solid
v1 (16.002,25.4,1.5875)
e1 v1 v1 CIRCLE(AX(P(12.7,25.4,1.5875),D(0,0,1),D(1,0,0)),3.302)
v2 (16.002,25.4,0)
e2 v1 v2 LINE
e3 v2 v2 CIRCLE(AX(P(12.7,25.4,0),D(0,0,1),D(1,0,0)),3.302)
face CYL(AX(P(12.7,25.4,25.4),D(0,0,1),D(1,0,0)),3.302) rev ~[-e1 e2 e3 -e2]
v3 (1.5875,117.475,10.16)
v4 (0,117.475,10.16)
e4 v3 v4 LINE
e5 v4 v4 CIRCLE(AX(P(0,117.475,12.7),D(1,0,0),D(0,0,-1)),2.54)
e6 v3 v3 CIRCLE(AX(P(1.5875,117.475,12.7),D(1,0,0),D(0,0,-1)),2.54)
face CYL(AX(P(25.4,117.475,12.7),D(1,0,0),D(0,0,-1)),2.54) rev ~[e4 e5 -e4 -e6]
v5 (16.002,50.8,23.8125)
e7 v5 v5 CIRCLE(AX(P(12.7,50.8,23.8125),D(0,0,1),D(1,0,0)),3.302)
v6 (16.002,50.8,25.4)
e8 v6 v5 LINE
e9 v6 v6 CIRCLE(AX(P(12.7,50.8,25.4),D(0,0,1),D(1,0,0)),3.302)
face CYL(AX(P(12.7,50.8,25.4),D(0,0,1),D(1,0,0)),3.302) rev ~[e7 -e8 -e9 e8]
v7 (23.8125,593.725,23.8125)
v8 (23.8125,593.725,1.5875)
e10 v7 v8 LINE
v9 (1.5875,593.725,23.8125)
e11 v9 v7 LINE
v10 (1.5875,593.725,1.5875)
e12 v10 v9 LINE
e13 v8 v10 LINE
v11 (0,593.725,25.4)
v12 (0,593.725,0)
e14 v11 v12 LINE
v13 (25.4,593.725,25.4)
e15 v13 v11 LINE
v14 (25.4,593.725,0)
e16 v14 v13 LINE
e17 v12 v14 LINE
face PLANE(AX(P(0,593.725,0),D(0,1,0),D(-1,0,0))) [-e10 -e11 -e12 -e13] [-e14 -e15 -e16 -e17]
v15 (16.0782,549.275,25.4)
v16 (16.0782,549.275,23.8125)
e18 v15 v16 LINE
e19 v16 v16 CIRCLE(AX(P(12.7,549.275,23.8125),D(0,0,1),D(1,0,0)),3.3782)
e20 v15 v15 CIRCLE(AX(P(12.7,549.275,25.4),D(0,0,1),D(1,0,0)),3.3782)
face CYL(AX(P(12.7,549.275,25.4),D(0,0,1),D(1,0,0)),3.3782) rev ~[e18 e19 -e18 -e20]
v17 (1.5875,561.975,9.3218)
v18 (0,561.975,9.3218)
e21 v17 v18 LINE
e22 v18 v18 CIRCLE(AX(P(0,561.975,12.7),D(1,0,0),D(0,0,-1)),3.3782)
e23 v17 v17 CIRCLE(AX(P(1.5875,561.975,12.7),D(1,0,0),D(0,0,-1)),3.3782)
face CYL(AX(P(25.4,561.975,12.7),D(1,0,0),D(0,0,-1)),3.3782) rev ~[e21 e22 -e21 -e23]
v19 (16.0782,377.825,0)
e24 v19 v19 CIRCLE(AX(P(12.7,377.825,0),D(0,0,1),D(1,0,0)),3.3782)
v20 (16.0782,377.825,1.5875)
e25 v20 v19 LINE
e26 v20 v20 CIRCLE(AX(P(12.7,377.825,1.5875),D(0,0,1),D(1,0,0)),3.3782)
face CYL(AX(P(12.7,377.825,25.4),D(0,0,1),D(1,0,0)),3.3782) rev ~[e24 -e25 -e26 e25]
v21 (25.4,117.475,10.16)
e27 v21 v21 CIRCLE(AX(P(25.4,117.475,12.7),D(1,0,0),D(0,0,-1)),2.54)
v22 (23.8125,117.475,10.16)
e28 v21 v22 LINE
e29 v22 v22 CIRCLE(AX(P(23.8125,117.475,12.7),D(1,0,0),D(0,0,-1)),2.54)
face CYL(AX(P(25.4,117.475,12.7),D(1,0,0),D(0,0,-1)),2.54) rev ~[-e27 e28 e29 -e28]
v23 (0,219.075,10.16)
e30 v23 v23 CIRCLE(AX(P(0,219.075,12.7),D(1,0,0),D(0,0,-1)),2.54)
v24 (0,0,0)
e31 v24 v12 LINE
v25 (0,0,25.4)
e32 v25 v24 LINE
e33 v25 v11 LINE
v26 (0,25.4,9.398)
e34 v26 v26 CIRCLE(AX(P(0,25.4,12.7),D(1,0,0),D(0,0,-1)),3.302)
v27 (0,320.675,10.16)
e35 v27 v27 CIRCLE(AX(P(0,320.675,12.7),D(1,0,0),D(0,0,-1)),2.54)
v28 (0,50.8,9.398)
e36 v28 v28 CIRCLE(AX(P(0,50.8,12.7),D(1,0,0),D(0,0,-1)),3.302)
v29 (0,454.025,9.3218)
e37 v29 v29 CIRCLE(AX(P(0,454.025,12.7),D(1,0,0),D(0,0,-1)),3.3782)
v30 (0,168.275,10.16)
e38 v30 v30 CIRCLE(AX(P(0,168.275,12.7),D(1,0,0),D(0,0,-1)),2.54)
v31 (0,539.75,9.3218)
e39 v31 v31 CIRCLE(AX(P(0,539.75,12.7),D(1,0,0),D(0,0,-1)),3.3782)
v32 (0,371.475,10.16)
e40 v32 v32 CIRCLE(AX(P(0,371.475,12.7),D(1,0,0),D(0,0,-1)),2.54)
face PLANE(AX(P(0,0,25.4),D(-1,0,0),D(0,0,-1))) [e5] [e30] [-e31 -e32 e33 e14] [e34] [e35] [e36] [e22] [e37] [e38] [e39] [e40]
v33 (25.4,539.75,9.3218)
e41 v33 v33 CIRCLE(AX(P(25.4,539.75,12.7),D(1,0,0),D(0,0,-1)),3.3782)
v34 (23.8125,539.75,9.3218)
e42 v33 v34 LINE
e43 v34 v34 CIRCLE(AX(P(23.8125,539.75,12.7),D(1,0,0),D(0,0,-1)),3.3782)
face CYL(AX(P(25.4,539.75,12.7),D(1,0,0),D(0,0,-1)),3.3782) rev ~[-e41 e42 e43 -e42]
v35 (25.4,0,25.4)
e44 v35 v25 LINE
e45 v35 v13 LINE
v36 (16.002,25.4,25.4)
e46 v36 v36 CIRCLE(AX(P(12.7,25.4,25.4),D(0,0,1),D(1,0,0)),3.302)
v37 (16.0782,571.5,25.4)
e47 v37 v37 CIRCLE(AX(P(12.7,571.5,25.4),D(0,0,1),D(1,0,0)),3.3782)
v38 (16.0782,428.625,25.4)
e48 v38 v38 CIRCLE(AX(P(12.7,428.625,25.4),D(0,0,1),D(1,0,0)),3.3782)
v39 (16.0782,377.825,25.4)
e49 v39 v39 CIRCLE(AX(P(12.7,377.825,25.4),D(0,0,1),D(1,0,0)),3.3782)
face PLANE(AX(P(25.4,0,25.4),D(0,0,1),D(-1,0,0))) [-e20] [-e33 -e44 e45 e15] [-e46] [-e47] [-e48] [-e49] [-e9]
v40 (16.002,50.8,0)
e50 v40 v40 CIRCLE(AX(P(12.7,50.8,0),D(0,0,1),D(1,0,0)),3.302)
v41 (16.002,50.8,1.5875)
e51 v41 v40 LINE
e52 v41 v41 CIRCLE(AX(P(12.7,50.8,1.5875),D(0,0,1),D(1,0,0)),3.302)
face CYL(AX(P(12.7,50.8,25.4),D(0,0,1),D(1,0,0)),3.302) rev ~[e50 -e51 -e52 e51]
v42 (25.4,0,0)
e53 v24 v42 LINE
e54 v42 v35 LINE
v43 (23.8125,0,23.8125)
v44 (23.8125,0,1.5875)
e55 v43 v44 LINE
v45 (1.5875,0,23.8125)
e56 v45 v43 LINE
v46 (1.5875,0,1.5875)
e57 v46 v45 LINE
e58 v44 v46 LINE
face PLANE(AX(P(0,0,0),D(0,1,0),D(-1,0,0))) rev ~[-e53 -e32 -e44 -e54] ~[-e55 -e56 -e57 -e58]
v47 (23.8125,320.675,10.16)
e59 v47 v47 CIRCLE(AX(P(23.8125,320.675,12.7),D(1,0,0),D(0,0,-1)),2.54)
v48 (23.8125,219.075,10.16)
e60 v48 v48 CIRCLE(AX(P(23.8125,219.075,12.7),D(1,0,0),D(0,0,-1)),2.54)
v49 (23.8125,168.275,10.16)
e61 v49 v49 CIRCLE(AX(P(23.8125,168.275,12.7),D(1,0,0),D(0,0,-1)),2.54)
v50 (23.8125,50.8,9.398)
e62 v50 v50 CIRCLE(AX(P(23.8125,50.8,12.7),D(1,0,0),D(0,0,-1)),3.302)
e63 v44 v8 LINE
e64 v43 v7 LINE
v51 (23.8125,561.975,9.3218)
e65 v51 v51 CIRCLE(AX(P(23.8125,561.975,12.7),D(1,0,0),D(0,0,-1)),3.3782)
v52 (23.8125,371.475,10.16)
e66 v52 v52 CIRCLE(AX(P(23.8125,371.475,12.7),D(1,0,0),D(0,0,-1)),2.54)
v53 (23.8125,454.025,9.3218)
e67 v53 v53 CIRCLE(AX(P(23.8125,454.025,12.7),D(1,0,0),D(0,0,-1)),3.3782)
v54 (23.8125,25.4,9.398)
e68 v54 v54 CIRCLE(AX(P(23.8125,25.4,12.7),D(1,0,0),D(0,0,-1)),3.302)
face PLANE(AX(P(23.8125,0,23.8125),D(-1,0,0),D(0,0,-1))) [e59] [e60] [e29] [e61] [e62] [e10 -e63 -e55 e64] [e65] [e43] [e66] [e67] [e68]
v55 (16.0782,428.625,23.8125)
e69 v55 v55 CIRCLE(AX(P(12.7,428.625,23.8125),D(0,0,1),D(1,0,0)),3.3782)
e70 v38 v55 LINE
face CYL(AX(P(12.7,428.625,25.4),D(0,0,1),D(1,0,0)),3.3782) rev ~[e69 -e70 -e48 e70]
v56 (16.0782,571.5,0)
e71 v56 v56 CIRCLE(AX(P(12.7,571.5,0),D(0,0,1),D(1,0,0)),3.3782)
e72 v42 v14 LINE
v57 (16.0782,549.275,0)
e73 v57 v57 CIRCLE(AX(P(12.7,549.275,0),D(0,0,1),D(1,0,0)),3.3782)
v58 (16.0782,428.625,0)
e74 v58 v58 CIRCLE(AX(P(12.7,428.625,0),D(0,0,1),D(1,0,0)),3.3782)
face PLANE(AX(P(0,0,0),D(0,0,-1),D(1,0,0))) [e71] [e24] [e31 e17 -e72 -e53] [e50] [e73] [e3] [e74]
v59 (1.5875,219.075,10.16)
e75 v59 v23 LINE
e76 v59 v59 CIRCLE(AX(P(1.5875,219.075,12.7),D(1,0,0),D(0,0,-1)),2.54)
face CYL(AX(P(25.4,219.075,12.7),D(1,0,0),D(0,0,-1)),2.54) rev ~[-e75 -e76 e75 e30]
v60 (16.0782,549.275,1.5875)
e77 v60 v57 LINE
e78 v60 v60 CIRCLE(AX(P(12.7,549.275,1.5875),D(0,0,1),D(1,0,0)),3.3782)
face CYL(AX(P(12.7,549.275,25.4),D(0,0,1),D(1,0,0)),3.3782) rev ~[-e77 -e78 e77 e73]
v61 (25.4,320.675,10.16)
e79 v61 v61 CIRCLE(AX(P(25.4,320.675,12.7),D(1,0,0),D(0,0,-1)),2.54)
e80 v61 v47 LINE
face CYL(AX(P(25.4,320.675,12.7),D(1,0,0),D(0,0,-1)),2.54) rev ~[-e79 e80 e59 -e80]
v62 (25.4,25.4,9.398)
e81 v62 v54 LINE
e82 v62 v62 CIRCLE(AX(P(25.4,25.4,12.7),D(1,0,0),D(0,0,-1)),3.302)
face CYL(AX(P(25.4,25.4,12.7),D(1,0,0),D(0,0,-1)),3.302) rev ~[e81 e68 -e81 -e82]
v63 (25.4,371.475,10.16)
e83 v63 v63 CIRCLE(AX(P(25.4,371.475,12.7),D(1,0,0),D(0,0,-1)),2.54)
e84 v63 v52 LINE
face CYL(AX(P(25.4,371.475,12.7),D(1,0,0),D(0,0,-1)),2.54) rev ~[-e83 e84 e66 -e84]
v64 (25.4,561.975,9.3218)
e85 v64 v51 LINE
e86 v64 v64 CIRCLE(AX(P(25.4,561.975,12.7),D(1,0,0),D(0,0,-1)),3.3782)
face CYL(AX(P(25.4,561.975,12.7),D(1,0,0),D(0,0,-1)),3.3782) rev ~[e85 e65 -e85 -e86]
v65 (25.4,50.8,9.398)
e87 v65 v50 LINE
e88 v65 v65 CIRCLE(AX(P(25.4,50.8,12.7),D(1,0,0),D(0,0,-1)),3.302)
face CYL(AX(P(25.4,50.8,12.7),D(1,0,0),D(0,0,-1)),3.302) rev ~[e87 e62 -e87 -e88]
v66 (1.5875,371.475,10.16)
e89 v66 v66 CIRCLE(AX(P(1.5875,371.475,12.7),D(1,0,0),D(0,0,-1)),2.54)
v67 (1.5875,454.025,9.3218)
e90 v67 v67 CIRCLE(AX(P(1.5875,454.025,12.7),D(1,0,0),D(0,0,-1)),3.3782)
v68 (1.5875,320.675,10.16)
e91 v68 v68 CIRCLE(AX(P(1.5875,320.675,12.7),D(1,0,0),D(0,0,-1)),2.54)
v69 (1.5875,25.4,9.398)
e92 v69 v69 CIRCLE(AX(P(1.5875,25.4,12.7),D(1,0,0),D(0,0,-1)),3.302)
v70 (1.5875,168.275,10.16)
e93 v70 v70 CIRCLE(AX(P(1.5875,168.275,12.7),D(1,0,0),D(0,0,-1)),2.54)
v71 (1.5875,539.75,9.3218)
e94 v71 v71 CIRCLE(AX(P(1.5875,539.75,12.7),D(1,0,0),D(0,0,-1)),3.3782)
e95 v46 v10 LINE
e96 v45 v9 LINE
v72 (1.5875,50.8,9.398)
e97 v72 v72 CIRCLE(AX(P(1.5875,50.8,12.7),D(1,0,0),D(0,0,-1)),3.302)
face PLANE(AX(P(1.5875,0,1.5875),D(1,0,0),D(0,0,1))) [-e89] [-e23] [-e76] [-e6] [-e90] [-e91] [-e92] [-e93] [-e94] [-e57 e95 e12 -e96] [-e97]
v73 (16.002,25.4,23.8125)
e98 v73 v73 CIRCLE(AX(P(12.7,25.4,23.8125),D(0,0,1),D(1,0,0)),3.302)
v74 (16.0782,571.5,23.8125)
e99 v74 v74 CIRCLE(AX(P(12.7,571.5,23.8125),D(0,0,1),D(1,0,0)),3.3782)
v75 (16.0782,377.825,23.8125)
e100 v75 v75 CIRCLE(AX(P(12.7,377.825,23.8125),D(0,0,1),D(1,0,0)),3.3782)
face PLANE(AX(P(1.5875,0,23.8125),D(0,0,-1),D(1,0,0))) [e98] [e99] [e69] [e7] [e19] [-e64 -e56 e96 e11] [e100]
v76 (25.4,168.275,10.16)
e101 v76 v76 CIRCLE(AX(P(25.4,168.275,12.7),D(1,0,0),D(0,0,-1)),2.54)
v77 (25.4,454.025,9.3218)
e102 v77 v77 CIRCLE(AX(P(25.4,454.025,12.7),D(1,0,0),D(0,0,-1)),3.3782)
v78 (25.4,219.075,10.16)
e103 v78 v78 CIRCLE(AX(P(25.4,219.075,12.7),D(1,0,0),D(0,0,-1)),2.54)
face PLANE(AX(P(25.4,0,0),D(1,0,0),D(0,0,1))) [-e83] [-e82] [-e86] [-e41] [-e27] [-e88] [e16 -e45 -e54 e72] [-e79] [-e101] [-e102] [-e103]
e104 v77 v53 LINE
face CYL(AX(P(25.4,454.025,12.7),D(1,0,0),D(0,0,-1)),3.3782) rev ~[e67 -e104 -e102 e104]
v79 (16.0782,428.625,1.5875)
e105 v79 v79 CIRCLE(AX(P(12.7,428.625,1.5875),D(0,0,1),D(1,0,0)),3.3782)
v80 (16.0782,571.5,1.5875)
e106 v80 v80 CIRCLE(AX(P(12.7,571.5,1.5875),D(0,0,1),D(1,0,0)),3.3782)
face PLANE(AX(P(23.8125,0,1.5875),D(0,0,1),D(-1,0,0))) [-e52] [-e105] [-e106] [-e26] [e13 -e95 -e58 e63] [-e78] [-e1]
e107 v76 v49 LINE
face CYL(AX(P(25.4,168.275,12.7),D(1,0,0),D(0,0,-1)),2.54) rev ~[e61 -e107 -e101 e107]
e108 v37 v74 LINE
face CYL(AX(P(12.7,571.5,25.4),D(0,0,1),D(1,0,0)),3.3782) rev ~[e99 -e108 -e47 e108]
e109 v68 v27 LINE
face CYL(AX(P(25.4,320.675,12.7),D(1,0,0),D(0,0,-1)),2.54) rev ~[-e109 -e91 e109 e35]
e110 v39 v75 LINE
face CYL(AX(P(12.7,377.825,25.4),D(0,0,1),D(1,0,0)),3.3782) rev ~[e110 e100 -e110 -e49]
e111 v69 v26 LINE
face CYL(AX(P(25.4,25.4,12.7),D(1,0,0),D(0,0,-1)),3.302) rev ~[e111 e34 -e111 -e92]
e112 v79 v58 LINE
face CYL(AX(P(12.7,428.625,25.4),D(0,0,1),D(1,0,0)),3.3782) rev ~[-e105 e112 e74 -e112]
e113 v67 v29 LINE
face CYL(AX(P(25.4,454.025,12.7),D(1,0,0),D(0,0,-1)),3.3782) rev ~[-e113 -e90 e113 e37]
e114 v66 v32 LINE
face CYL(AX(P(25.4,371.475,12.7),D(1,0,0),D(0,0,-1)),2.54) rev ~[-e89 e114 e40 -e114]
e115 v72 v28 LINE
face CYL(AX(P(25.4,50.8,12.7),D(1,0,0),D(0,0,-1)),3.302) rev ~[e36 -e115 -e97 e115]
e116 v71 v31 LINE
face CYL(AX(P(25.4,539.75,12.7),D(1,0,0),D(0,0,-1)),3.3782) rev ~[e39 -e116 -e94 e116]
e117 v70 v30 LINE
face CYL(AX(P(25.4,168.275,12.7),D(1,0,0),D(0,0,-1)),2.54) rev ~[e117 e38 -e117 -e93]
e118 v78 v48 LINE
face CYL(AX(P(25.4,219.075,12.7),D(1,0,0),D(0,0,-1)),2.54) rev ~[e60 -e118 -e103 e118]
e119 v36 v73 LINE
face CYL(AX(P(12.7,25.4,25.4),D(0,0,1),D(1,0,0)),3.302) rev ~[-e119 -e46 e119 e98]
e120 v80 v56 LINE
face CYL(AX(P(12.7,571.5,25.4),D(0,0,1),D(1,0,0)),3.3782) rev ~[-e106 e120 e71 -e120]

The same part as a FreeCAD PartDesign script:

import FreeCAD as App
import Part
import Sketcher
from FreeCAD import Vector
Q = App.Units.Quantity


def add_polygon(sketch, points):
    """Adds a closed chain of lines whose ends are joined by coincident constraints."""
    first, n = sketch.GeometryCount, len(points)
    for a, b in zip(points, points[1:] + points[:1]):
        sketch.addGeometry(Part.LineSegment(App.Vector(*a, 0), App.Vector(*b, 0)), False)
    for i in range(n):
        sketch.addConstraint(Sketcher.Constraint("Coincident", first + i, 2, first + (i + 1) % n, 1))

doc = App.newDocument("Part")
params = doc.addObject("Spreadsheet::Sheet", "Params")
for row, (alias, value) in enumerate([
    ("sketch1_width", "1 in"),
    ("pad1_length", "23.375 in"),
    ("sketch2_diameter", "0.2 in"),
    ("sketch2_diameter2", "0.26 in"),
    ("sketch2_diameter3", "0.266 in"),
    ("pocket1_length", "1 in"),
    ("sketch3_diameter", "0.26 in"),
    ("sketch3_diameter2", "0.266 in"),
    ("pocket2_length", "1 in"),
], start=1):
    params.set(f"A{row}", alias)
    params.set(f"B{row}", "=" + value)
    params.setAlias(f"B{row}", alias)

body = doc.addObject("PartDesign::Body", "Body")

# Sketch on XZ plane
sketch1 = body.newObject("Sketcher::SketchObject", "Sketch")
sketch1.AttachmentSupport = (doc.getObject("XZ_Plane"), [""])
sketch1.MapMode = "FlatFace"
add_polygon(sketch1, [(25, 0), (0, 0), (0, 25), (25, 25)])  # lines 0-3
add_polygon(sketch1, [(24, 24), (2, 24), (2, 2), (24, 2)])  # lines 4-7
sketch1.addConstraint([
    Sketcher.Constraint("Horizontal", 0),
    Sketcher.Constraint("Vertical", 1),
    Sketcher.Constraint("Horizontal", 2),
    Sketcher.Constraint("Vertical", 3),
    Sketcher.Constraint("Horizontal", 4),
    Sketcher.Constraint("Vertical", 5),
    Sketcher.Constraint("Horizontal", 6),
    Sketcher.Constraint("Vertical", 7),
    Sketcher.Constraint("Coincident", 0, 2, -1, 1),
    Sketcher.Constraint("Equal", 2, 1),
    Sketcher.Constraint("Equal", 6, 5),
    Sketcher.Constraint("DistanceX", 0, 2, 0, 1, Q("1 in")),
    Sketcher.Constraint("DistanceX", -1, 1, 4, 2, Q("0.0625 in")),
    Sketcher.Constraint("DistanceY", -1, 1, 5, 2, Q("0.0625 in")),
    Sketcher.Constraint("DistanceY", 4, 2, 1, 2, Q("0.0625 in")),
])
sketch1.setExpression("Constraints[19]", "Params.sketch1_width")
pad1 = body.newObject("PartDesign::Pad", "Pad")
pad1.Profile = sketch1
pad1.setExpression("Length", "Params.pad1_length")
pad1.Reversed = True

# Sketch on YZ plane
sketch2 = body.newObject("Sketcher::SketchObject", "Sketch001")
sketch2.AttachmentSupport = (doc.getObject("YZ_Plane"), [""])
sketch2.MapMode = "FlatFace"
sketch2.AttachmentOffset = App.Placement(Vector(0, 0, 1 * 25.4), App.Rotation())
sketch2.addGeometry([
    Part.Circle(Vector(562, 12.7, 0), Vector(0, 0, 1), 3.4),  # 0
    Part.Circle(Vector(539.8, 12.7, 0), Vector(0, 0, 1), 3.4),  # 1
    Part.Circle(Vector(454, 12.7, 0), Vector(0, 0, 1), 3.4),  # 2
    Part.Circle(Vector(25.4, 12.7, 0), Vector(0, 0, 1), 3.3),  # 3
    Part.Circle(Vector(50.8, 12.7, 0), Vector(0, 0, 1), 3.3),  # 4
    Part.Circle(Vector(371.5, 12.7, 0), Vector(0, 0, 1), 2.5),  # 5
    Part.Circle(Vector(320.7, 12.7, 0), Vector(0, 0, 1), 2.5),  # 6
    Part.Circle(Vector(219.1, 12.7, 0), Vector(0, 0, 1), 2.5),  # 7
    Part.Circle(Vector(168.3, 12.7, 0), Vector(0, 0, 1), 2.5),  # 8
    Part.Circle(Vector(117.5, 12.7, 0), Vector(0, 0, 1), 2.5),  # 9
], False)
sketch2.addConstraint([
    Sketcher.Constraint("Equal", 0, 1),
    Sketcher.Constraint("Equal", 1, 2),
    Sketcher.Constraint("Equal", 3, 4),
    Sketcher.Constraint("Equal", 5, 6),
    Sketcher.Constraint("Equal", 6, 7),
    Sketcher.Constraint("Equal", 7, 8),
    Sketcher.Constraint("Equal", 8, 9),
    Sketcher.Constraint("Horizontal", 0, 3, 1, 3),
    Sketcher.Constraint("Horizontal", 1, 3, 2, 3),
    Sketcher.Constraint("Horizontal", 2, 3, 3, 3),
    Sketcher.Constraint("Horizontal", 3, 3, 4, 3),
    Sketcher.Constraint("Horizontal", 4, 3, 5, 3),
    Sketcher.Constraint("Horizontal", 5, 3, 6, 3),
    Sketcher.Constraint("Horizontal", 6, 3, 7, 3),
    Sketcher.Constraint("Horizontal", 7, 3, 8, 3),
    Sketcher.Constraint("Horizontal", 8, 3, 9, 3),
    Sketcher.Constraint("Diameter", 5, Q("0.2 in")),
    Sketcher.Constraint("Diameter", 3, Q("0.26 in")),
    Sketcher.Constraint("Diameter", 0, Q("0.266 in")),
    Sketcher.Constraint("DistanceX", -1, 1, 3, 3, Q("1 in")),
    Sketcher.Constraint("DistanceX", -1, 1, 4, 3, Q("2 in")),
    Sketcher.Constraint("DistanceX", 6, 3, 5, 3, Q("2 in")),
    Sketcher.Constraint("DistanceX", 7, 3, 6, 3, Q("4 in")),
    Sketcher.Constraint("DistanceX", 8, 3, 7, 3, Q("2 in")),
    Sketcher.Constraint("DistanceX", 9, 3, 8, 3, Q("2 in")),
    Sketcher.Constraint("DistanceY", -1, 1, 0, 3, Q("0.5 in")),
    Sketcher.Constraint("DistanceX", 5, 3, 0, 3, Q("7.5 in")),
    Sketcher.Constraint("DistanceX", -1, 1, 1, 3, Q("21.25 in")),
    Sketcher.Constraint("DistanceX", 2, 3, 0, 3, Q("4.25 in")),
    Sketcher.Constraint("DistanceX", -1, 1, 0, 3, Q("22.125 in")),
])
sketch2.setExpression("Constraints[16]", "Params.sketch2_diameter")
sketch2.setExpression("Constraints[17]", "Params.sketch2_diameter2")
sketch2.setExpression("Constraints[18]", "Params.sketch2_diameter3")
pocket1 = body.newObject("PartDesign::Pocket", "Pocket")
pocket1.Profile = sketch2
pocket1.setExpression("Length", "Params.pocket1_length")

# Sketch on XY plane
sketch3 = body.newObject("Sketcher::SketchObject", "Sketch002")
sketch3.AttachmentSupport = (doc.getObject("XY_Plane"), [""])
sketch3.MapMode = "FlatFace"
sketch3.AttachmentOffset = App.Placement(Vector(0, 0, 1 * 25.4), App.Rotation())
sketch3.addGeometry([
    Part.Circle(Vector(12.7, 428.6, 0), Vector(0, 0, 1), 3.4),  # 0
    Part.Circle(Vector(12.7, 377.8, 0), Vector(0, 0, 1), 3.4),  # 1
    Part.Circle(Vector(12.7, 25.4, 0), Vector(0, 0, 1), 3.3),  # 2
    Part.Circle(Vector(12.7, 50.8, 0), Vector(0, 0, 1), 3.3),  # 3
    Part.Circle(Vector(12.7, 571.5, 0), Vector(0, 0, 1), 3.4),  # 4
    Part.Circle(Vector(12.7, 549.3, 0), Vector(0, 0, 1), 3.4),  # 5
], False)
sketch3.addConstraint([
    Sketcher.Constraint("Equal", 0, 1),
    Sketcher.Constraint("Equal", 2, 3),
    Sketcher.Constraint("Equal", 1, 4),
    Sketcher.Constraint("Equal", 4, 5),
    Sketcher.Constraint("Vertical", 0, 3, 1, 3),
    Sketcher.Constraint("Vertical", 1, 3, 2, 3),
    Sketcher.Constraint("Vertical", 2, 3, 3, 3),
    Sketcher.Constraint("Vertical", 3, 3, 4, 3),
    Sketcher.Constraint("Vertical", 4, 3, 5, 3),
    Sketcher.Constraint("Diameter", 2, Q("0.26 in")),
    Sketcher.Constraint("Diameter", 0, Q("0.266 in")),
    Sketcher.Constraint("DistanceY", -1, 1, 2, 3, Q("1 in")),
    Sketcher.Constraint("DistanceY", -1, 1, 3, 3, Q("2 in")),
    Sketcher.Constraint("DistanceY", 1, 3, 0, 3, Q("2 in")),
    Sketcher.Constraint("DistanceX", -1, 1, 0, 3, Q("0.5 in")),
    Sketcher.Constraint("DistanceY", -1, 1, 4, 3, Q("22.5 in")),
    Sketcher.Constraint("DistanceY", 0, 3, 5, 3, Q("4.75 in")),
    Sketcher.Constraint("DistanceY", -1, 1, 0, 3, Q("16.875 in")),
])
sketch3.setExpression("Constraints[9]", "Params.sketch3_diameter")
sketch3.setExpression("Constraints[10]", "Params.sketch3_diameter2")
pocket2 = body.newObject("PartDesign::Pocket", "Pocket001")
pocket2.Profile = sketch3
pocket2.setExpression("Length", "Params.pocket2_length")

doc.recompute()
